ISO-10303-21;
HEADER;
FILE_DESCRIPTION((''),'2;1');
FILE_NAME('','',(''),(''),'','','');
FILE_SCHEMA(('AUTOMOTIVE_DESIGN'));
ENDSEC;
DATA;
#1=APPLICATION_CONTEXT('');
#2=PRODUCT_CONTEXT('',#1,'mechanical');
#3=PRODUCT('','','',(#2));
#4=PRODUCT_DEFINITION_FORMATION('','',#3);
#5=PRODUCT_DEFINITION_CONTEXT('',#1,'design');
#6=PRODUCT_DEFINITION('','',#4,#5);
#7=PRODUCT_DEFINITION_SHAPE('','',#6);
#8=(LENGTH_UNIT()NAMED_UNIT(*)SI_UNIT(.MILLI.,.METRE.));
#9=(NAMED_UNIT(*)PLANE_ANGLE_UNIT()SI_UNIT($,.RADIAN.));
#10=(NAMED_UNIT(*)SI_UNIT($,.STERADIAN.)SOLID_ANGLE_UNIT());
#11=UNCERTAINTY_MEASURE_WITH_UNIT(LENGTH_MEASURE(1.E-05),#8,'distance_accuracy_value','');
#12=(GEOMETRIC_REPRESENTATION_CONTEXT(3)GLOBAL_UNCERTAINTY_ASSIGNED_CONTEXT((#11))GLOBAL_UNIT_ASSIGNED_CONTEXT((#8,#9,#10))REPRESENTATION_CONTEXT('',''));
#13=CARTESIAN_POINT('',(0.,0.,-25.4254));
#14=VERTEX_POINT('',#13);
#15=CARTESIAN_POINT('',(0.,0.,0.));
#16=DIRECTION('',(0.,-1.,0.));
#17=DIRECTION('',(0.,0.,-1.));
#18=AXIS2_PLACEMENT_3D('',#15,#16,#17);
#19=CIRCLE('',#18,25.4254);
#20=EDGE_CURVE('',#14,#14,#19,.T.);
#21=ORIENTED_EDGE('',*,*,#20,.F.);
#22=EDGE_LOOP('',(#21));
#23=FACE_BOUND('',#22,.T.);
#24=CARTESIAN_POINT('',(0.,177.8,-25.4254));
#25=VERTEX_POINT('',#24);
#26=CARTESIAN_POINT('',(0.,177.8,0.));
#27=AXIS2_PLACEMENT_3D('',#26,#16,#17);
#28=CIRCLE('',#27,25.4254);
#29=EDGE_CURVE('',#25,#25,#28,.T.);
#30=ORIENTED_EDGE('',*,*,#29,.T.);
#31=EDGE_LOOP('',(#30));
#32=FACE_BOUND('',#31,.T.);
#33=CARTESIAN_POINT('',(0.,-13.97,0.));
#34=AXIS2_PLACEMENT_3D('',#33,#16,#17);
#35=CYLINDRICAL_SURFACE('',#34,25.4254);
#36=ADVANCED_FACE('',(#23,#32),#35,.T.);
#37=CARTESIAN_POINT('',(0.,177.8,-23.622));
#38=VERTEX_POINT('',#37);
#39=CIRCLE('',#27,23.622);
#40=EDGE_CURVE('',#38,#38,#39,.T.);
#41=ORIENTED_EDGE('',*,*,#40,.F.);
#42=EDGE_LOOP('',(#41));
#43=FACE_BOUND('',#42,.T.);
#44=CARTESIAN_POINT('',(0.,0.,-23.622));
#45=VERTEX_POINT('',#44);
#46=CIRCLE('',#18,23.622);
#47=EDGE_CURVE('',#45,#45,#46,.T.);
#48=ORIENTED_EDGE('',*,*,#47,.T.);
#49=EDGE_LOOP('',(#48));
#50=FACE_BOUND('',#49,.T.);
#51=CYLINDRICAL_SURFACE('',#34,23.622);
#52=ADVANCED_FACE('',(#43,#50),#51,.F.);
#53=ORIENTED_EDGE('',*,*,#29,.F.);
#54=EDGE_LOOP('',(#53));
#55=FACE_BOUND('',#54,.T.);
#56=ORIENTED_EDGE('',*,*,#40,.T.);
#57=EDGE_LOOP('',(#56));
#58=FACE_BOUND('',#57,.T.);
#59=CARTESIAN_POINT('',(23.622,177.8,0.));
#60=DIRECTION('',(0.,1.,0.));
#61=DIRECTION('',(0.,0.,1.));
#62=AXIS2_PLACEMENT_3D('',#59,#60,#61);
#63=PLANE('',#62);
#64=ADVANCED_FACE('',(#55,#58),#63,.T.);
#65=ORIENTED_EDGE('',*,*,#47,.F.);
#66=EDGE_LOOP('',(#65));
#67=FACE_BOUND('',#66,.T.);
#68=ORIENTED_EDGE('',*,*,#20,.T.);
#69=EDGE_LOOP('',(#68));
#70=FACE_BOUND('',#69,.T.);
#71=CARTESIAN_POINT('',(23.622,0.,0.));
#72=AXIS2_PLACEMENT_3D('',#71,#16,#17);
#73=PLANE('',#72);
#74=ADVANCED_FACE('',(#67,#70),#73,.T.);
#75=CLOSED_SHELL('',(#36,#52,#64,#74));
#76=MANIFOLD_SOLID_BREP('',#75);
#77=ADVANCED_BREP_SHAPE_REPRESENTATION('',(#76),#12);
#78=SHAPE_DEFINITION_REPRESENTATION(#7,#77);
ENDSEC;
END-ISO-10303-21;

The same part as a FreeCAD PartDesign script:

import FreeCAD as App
import Part
import Sketcher
from FreeCAD import Vector
Q = App.Units.Quantity


def add_polygon(sketch, points):
    """Adds a closed chain of lines whose ends are joined by coincident constraints."""
    first, n = sketch.GeometryCount, len(points)
    for a, b in zip(points, points[1:] + points[:1]):
        sketch.addGeometry(Part.LineSegment(App.Vector(*a, 0), App.Vector(*b, 0)), False)
    for i in range(n):
        sketch.addConstraint(Sketcher.Constraint("Coincident", first + i, 2, first + (i + 1) % n, 1))

doc = App.newDocument("Part")
body = doc.addObject("PartDesign::Body", "Body")

# Sketch on XY plane
sketch1 = body.newObject("Sketcher::SketchObject", "Sketch")
sketch1.AttachmentSupport = (doc.getObject("XY_Plane"), [""])
sketch1.MapMode = "FlatFace"
add_polygon(sketch1, [(23.6, 177.8), (23.6, 0), (25.4, 0), (25.4, 177.8)])  # lines 0-3
sketch1.addConstraint(Sketcher.Constraint("Vertical", 0))
sketch1.addConstraint(Sketcher.Constraint("Horizontal", 1))
sketch1.addConstraint(Sketcher.Constraint("Vertical", 2))
sketch1.addConstraint(Sketcher.Constraint("Horizontal", 3))
sketch1.addConstraint(Sketcher.Constraint("PointOnObject", 0, 2, -1))
sketch1.addConstraint(Sketcher.Constraint("DistanceY", 0, 2, 0, 1, Q("7 in")))
sketch1.addConstraint(Sketcher.Constraint("DistanceX", 1, 1, 1, 2, Q("0.071 in")))
sketch1.addConstraint(Sketcher.Constraint("DistanceX", -1, 1, 0, 2, Q("0.93 in")))
revolution = body.newObject("PartDesign::Revolution", "Revolution")
revolution.Profile = sketch1
revolution.ReferenceAxis = (sketch1, ["V_Axis"])
revolution.Angle = 360

doc.recompute()
